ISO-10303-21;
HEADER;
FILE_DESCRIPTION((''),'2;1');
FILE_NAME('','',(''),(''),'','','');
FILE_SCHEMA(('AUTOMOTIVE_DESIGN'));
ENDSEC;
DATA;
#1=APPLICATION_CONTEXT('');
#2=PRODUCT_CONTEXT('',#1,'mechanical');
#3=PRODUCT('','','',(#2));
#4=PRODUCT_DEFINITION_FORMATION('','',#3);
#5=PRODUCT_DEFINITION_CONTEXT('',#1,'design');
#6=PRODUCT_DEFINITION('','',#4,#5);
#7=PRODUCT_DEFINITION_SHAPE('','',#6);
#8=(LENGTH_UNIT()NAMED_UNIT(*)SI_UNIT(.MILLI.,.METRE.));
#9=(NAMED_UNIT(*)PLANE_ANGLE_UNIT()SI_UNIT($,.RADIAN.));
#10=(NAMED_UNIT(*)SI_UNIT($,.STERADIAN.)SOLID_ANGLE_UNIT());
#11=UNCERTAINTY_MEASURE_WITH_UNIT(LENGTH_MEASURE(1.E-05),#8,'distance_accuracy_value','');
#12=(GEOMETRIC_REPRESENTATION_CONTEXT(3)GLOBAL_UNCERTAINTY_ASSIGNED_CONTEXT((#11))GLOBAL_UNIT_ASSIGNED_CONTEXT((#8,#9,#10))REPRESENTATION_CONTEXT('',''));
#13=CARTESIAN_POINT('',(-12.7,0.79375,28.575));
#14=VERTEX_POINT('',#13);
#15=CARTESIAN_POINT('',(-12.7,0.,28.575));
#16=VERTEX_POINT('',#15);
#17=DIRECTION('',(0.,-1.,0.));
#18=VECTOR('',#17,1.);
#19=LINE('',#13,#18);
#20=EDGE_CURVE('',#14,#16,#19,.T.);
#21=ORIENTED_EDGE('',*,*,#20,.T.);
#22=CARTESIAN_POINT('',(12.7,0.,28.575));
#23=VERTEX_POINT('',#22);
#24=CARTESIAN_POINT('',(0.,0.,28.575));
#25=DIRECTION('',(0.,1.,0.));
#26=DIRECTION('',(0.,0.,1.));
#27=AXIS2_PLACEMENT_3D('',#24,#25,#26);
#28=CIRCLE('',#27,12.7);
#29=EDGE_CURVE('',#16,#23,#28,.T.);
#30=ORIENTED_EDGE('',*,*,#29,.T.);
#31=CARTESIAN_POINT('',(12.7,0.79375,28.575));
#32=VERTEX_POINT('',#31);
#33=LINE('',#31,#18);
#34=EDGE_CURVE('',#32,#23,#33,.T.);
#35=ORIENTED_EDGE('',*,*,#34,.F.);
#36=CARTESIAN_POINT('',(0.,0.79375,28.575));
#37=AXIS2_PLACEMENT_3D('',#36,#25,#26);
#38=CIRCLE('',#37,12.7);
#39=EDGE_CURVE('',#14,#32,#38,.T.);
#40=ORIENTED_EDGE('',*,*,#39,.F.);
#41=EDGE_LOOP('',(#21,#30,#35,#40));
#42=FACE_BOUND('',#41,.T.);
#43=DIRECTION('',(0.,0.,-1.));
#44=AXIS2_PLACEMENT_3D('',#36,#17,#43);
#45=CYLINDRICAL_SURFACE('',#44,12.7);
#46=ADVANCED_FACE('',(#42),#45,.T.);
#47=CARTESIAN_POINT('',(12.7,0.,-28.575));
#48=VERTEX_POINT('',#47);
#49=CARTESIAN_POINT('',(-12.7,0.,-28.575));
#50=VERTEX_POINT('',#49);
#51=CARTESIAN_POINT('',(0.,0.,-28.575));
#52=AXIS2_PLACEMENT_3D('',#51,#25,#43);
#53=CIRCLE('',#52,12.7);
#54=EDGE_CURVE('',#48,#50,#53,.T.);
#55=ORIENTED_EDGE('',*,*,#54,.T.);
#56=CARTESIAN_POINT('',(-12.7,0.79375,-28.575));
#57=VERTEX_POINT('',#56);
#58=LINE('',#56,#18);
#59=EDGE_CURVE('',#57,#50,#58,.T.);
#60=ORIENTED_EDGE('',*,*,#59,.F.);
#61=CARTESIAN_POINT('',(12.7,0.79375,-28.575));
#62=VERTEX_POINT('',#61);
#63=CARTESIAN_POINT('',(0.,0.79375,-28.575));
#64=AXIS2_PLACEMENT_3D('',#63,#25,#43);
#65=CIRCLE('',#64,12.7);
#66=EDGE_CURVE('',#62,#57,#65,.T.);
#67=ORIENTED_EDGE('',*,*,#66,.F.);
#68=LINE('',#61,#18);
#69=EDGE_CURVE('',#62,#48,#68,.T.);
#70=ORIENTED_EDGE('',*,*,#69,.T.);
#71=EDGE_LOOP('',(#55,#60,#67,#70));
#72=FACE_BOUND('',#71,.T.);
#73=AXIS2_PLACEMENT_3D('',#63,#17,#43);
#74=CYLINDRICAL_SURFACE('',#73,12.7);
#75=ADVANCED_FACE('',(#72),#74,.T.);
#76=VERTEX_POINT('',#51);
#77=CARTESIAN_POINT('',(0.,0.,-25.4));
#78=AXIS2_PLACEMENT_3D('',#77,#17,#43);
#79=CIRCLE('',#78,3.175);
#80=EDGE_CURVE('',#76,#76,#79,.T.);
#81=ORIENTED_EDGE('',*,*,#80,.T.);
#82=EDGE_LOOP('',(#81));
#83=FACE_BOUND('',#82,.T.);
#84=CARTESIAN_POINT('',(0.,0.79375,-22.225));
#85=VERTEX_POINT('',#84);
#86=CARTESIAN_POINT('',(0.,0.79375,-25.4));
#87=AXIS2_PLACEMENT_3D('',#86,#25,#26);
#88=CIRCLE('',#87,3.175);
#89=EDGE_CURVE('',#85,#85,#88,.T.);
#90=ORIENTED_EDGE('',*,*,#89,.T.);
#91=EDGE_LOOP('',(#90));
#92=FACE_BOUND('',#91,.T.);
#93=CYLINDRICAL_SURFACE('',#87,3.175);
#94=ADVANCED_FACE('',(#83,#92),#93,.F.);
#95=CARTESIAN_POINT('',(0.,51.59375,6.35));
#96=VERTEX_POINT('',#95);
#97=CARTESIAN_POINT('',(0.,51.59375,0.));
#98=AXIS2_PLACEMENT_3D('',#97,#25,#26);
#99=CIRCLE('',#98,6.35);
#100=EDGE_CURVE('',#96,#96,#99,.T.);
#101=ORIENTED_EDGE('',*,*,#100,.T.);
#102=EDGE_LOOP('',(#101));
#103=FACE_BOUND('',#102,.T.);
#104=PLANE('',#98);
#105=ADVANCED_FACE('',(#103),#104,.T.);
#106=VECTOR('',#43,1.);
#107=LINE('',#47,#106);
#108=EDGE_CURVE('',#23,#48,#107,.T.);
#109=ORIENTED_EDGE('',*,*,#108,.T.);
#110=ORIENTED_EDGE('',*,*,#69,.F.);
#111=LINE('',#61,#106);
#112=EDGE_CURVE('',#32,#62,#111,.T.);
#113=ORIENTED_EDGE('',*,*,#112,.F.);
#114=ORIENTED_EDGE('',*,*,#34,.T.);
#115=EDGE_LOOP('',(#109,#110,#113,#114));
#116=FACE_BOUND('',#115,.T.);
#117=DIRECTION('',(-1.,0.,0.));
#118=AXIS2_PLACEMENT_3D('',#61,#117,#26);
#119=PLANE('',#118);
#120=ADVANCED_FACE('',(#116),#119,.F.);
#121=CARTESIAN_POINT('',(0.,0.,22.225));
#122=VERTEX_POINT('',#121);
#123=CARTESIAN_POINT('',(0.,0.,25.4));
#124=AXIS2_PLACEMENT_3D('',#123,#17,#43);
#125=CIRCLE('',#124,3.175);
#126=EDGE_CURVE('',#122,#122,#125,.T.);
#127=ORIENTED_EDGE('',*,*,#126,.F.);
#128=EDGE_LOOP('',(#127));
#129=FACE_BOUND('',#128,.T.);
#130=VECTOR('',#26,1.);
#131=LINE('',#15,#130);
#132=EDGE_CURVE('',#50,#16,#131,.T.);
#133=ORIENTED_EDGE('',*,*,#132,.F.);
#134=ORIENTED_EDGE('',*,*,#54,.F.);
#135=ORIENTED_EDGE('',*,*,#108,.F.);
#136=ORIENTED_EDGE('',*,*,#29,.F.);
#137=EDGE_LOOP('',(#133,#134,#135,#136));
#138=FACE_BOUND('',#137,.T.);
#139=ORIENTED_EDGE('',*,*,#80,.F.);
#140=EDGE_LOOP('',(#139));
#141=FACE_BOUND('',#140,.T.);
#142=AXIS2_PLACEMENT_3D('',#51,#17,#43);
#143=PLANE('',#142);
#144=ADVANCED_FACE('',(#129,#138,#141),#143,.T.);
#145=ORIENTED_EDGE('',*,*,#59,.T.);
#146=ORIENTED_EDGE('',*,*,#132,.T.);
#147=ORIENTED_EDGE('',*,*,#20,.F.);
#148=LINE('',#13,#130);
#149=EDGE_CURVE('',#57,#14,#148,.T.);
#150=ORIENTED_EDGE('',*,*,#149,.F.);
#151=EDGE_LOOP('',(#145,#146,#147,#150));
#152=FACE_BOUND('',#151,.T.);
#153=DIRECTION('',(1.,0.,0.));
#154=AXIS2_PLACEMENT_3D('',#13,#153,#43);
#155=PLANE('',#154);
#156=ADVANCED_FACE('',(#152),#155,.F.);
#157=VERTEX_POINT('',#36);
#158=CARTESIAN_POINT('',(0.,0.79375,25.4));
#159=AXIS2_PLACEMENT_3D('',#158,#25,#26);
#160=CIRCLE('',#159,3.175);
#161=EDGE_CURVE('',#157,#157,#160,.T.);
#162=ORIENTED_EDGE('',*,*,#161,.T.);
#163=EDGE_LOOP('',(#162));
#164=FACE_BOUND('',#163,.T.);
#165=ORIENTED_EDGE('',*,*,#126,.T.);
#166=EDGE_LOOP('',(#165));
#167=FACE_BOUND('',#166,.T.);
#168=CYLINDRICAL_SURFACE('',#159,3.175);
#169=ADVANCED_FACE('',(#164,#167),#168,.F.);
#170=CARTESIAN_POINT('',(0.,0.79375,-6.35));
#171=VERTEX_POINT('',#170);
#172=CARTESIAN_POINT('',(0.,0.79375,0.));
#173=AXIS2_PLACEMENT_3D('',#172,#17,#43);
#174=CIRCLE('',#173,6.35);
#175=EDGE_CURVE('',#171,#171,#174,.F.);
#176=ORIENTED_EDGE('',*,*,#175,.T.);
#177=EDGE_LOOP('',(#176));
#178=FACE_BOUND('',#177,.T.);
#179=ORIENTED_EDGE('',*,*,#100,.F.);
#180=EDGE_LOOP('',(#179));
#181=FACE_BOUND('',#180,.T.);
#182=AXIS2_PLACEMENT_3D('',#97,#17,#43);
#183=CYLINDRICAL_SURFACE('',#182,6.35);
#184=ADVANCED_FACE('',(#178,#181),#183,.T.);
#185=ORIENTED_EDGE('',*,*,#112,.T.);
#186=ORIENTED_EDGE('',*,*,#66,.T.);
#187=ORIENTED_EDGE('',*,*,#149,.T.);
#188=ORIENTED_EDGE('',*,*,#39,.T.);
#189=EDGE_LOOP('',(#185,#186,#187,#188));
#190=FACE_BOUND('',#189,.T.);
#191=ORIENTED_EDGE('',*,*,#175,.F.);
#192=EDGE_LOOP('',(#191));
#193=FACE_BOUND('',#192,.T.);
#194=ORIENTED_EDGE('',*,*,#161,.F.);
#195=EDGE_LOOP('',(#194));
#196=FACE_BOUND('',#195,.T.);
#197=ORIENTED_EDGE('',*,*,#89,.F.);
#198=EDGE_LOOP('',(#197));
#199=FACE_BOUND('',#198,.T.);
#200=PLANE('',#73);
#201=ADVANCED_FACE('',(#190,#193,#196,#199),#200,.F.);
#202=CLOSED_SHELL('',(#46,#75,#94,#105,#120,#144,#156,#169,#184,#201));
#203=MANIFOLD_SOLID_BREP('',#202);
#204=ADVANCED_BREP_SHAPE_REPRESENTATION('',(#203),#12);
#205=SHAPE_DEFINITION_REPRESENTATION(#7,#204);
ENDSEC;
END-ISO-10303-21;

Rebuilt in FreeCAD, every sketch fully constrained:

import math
import FreeCAD as App
import Part
import Sketcher

V = App.Vector
Q = App.Units.Quantity

doc = App.newDocument("Part")
body = doc.addObject("PartDesign::Body", "Body")

# Sketch on XZ plane
sketch1 = body.newObject("Sketcher::SketchObject", "Sketch")
sketch1.AttachmentSupport = (doc.getObject("XZ_Plane"), [""])
sketch1.MapMode = "FlatFace"
sketch1.addGeometry(Part.LineSegment(V(-13, -29, 0), V(-13, 29, 0)), False)
sketch1.addGeometry(Part.ArcOfCircle(Part.Circle(V(0, 29, 0), V(0, 0, 1), 13), math.radians(0), math.radians(180)), False)
sketch1.addGeometry(Part.LineSegment(V(13, 29, 0), V(13, -29, 0)), False)
sketch1.addGeometry(Part.ArcOfCircle(Part.Circle(V(0, -29, 0), V(0, 0, 1), 13), math.radians(180), math.radians(360)), False)
sketch1.addConstraint(Sketcher.Constraint("Tangent", 0, 2, 1, 2))
sketch1.addConstraint(Sketcher.Constraint("Tangent", 1, 1, 2, 1))
sketch1.addConstraint(Sketcher.Constraint("Tangent", 2, 2, 3, 2))
sketch1.addConstraint(Sketcher.Constraint("Tangent", 3, 1, 0, 1))
sketch1.addConstraint(Sketcher.Constraint("Vertical", 0))
sketch1.addConstraint(Sketcher.Constraint("Vertical", 2))
sketch1.addConstraint(Sketcher.Constraint("Symmetric", 1, 3, 3, 3, -1, 1))
sketch1.addConstraint(Sketcher.Constraint("Radius", 1, Q("0.5 in")))
sketch1.addConstraint(Sketcher.Constraint("DistanceY", 0, 1, 0, 2, Q("2.25 in")))
pad1 = body.newObject("PartDesign::Pad", "Pad")
pad1.Profile = sketch1
pad1.Length = Q("0.03125 in")
pad1.Reversed = True

# Sketch on XZ plane
sketch2 = body.newObject("Sketcher::SketchObject", "Sketch001")
sketch2.AttachmentSupport = (doc.getObject("XZ_Plane"), [""])
sketch2.MapMode = "FlatFace"
sketch2.AttachmentOffset = App.Placement(V(0, 0, -0.03125 * 25.4), App.Rotation())
sketch2.addGeometry(Part.Circle(V(0, 25.4, 0), V(0, 0, 1), 1.6), False)
sketch2.addGeometry(Part.Circle(V(0, -25.4, 0), V(0, 0, 1), 1.6), False)
sketch2.addConstraint(Sketcher.Constraint("Equal", 0, 1))
sketch2.addConstraint(Sketcher.Constraint("Symmetric", 0, 3, 1, 3, -1, 1))
sketch2.addConstraint(Sketcher.Constraint("PointOnObject", 0, 3, -2))
sketch2.addConstraint(Sketcher.Constraint("DistanceY", -1, 1, 0, 3, Q("1 in")))
sketch2.addConstraint(Sketcher.Constraint("Diameter", 0, Q("0.1285 in")))
doc.recompute()
hole = body.newObject("PartDesign::Hole", "Hole")
hole.Profile = sketch2
hole.ThreadType = "None"
hole.Diameter = Q("0.1285 in")
hole.DepthType = "ThroughAll"
hole.HoleCutType = "Counterbore"
hole.HoleCutDiameter = Q("0.25 in")
hole.HoleCutDepth = Q("0.059 in")
hole.Reversed = True

# Sketch on XZ plane
sketch3 = body.newObject("Sketcher::SketchObject", "Sketch002")
sketch3.AttachmentSupport = (doc.getObject("XZ_Plane"), [""])
sketch3.MapMode = "FlatFace"
sketch3.AttachmentOffset = App.Placement(V(0, 0, -0.03125 * 25.4), App.Rotation())
sketch3.addGeometry(Part.Circle(V(0, 0, 0), V(0, 0, 1), 6), False)
sketch3.addConstraint(Sketcher.Constraint("Coincident", 0, 3, -1, 1))
sketch3.addConstraint(Sketcher.Constraint("Diameter", 0, Q("0.5 in")))
pad2 = body.newObject("PartDesign::Pad", "Pad001")
pad2.Profile = sketch3
pad2.Length = Q("2 in")
pad2.Reversed = True

doc.recompute()
